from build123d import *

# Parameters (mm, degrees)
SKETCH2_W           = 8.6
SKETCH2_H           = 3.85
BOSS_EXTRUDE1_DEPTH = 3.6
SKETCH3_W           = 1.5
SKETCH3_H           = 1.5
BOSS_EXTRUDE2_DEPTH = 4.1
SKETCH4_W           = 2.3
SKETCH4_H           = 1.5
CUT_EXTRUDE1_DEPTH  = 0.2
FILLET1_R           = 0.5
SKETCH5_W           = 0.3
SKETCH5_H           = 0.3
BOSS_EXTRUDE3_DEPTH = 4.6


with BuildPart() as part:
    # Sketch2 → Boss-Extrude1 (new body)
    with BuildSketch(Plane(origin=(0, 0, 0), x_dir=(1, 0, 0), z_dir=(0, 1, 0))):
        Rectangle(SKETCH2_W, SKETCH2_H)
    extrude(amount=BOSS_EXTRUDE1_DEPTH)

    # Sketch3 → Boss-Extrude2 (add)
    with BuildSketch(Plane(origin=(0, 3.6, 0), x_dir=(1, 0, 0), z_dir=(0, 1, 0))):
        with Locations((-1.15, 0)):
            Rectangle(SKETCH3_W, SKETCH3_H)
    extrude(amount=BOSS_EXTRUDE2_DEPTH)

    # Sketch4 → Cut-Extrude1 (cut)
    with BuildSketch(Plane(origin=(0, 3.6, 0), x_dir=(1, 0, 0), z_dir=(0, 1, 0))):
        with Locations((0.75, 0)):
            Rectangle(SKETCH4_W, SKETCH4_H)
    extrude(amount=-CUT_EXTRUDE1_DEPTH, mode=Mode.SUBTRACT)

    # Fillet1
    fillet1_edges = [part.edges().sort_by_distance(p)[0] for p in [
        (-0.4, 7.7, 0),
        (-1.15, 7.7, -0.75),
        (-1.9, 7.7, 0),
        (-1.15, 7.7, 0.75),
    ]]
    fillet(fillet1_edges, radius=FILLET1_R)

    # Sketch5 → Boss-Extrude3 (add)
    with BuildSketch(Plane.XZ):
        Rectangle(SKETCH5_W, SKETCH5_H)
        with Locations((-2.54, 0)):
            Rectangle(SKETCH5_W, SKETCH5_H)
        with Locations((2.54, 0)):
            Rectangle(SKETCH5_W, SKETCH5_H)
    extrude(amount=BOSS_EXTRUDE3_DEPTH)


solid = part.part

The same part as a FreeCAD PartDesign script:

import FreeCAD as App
import Part
import Sketcher


def edges_at(feature, points):
    """Names of the edges that pass closest to the given points."""
    edges = feature.Shape.Edges
    near = lambda p: min(range(len(edges)), key=lambda i: edges[i].distToShape(Part.Vertex(*p))[0])
    return sorted({f"Edge{near(p) + 1}" for p in points})


def add_polygon(sketch, points):
    """Adds a closed chain of lines whose ends are joined by coincident constraints."""
    first, n = sketch.GeometryCount, len(points)
    for a, b in zip(points, points[1:] + points[:1]):
        sketch.addGeometry(Part.LineSegment(App.Vector(*a, 0), App.Vector(*b, 0)), False)
    for i in range(n):
        sketch.addConstraint(Sketcher.Constraint("Coincident", first + i, 2, first + (i + 1) % n, 1))

doc = App.newDocument("Part")
params = doc.addObject("Spreadsheet::Sheet", "Params")
for row, (alias, value) in enumerate([
    ("sketch1_width", "8.6 mm"),
    ("sketch1_height", "3.85 mm"),
    ("pad1_length", "3.6 mm"),
    ("sketch2_width", "1.5 mm"),
    ("pad2_length", "4.1 mm"),
    ("sketch3_width", "2.3 mm"),
    ("sketch3_height", "1.5 mm"),
    ("pocket1_length", "0.2 mm"),
    ("fillet_radius", "0.5 mm"),
    ("sketch4_width", "0.3 mm"),
    ("pad3_length", "4.6 mm"),
], start=1):
    params.set(f"A{row}", alias)
    params.set(f"B{row}", "=" + value)
    params.setAlias(f"B{row}", alias)

body = doc.addObject("PartDesign::Body", "Body")

# Sketch on XZ plane
sketch1 = body.newObject("Sketcher::SketchObject", "Sketch")
sketch1.AttachmentSupport = (doc.getObject("XZ_Plane"), [""])
sketch1.MapMode = "FlatFace"
add_polygon(sketch1, [(-4.3, -1.9), (-4.3, 1.9), (4.3, 1.9), (4.3, -1.9)])  # lines 0-3
sketch1.addConstraint([
    Sketcher.Constraint("Vertical", 0),
    Sketcher.Constraint("Horizontal", 1),
    Sketcher.Constraint("Vertical", 2),
    Sketcher.Constraint("Horizontal", 3),
    Sketcher.Constraint("Symmetric", 0, 2, 2, 2, -1, 1),
    Sketcher.Constraint("DistanceX", 1, 1, 1, 2, 8.6),
    Sketcher.Constraint("DistanceY", 0, 1, 0, 2, 3.85),
])
sketch1.setExpression("Constraints[9]", "Params.sketch1_width")
sketch1.setExpression("Constraints[10]", "Params.sketch1_height")
pad1 = body.newObject("PartDesign::Pad", "Pad")
pad1.Profile = sketch1
pad1.setExpression("Length", "Params.pad1_length")
pad1.Reversed = True

# Sketch on XZ plane
sketch2 = body.newObject("Sketcher::SketchObject", "Sketch001")
sketch2.AttachmentSupport = (doc.getObject("XZ_Plane"), [""])
sketch2.MapMode = "FlatFace"
sketch2.AttachmentOffset = App.Placement(App.Vector(0, 0, -3.6), App.Rotation())
add_polygon(sketch2, [(-1.9, -0.8), (-1.9, 0.8), (-0.4, 0.8), (-0.4, -0.8)])  # lines 0-3
sketch2.addConstraint([
    Sketcher.Constraint("Vertical", 0),
    Sketcher.Constraint("Horizontal", 1),
    Sketcher.Constraint("Vertical", 2),
    Sketcher.Constraint("Horizontal", 3),
    Sketcher.Constraint("Equal", 3, 0),
    Sketcher.Constraint("DistanceX", 1, 1, 1, 2, 1.5),
    Sketcher.Constraint("DistanceX", 0, 2, -1, 1, 1.9),
    Sketcher.Constraint("DistanceY", -1, 1, 0, 2, 0.75),
])
sketch2.setExpression("Constraints[9]", "Params.sketch2_width")
pad2 = body.newObject("PartDesign::Pad", "Pad001")
pad2.Profile = sketch2
pad2.setExpression("Length", "Params.pad2_length")
pad2.Reversed = True

# Sketch on XZ plane
sketch3 = body.newObject("Sketcher::SketchObject", "Sketch002")
sketch3.AttachmentSupport = (doc.getObject("XZ_Plane"), [""])
sketch3.MapMode = "FlatFace"
sketch3.AttachmentOffset = App.Placement(App.Vector(0, 0, -3.6), App.Rotation())
add_polygon(sketch3, [(-0.4, -0.8), (-0.4, 0.8), (1.9, 0.8), (1.9, -0.8)])  # lines 0-3
sketch3.addConstraint([
    Sketcher.Constraint("Vertical", 0),
    Sketcher.Constraint("Horizontal", 1),
    Sketcher.Constraint("Vertical", 2),
    Sketcher.Constraint("Horizontal", 3),
    Sketcher.Constraint("DistanceX", 1, 1, 1, 2, 2.3),
    Sketcher.Constraint("DistanceY", 0, 1, 0, 2, 1.5),
    Sketcher.Constraint("DistanceX", 0, 2, -1, 1, 0.4),
    Sketcher.Constraint("DistanceY", -1, 1, 0, 2, 0.75),
])
sketch3.setExpression("Constraints[8]", "Params.sketch3_width")
sketch3.setExpression("Constraints[9]", "Params.sketch3_height")
pocket1 = body.newObject("PartDesign::Pocket", "Pocket")
pocket1.Profile = sketch3
pocket1.setExpression("Length", "Params.pocket1_length")
pocket1.Reversed = True
doc.recompute()

fillet = body.newObject("PartDesign::Fillet", "Fillet")
fillet.Base = (pocket1, edges_at(pocket1, [
    (-0.4, 7.7, 0),
    (-1.15, 7.7, -0.75),
    (-1.9, 7.7, 0),
    (-1.15, 7.7, 0.75),
]))
fillet.setExpression("Radius", "Params.fillet_radius")

# Sketch on XZ plane
sketch4 = body.newObject("Sketcher::SketchObject", "Sketch003")
sketch4.AttachmentSupport = (doc.getObject("XZ_Plane"), [""])
sketch4.MapMode = "FlatFace"
add_polygon(sketch4, [(-0.15, 0.15), (-0.15, -0.15), (0.15, -0.15), (0.15, 0.15)])  # lines 0-3
add_polygon(sketch4, [(-2.69, 0.15), (-2.69, -0.15), (-2.39, -0.15), (-2.39, 0.15)])  # lines 4-7
add_polygon(sketch4, [(2.39, 0.15), (2.39, -0.15), (2.69, -0.15), (2.69, 0.15)])  # lines 8-11
sketch4.addConstraint([
    Sketcher.Constraint("Vertical", 0),
    Sketcher.Constraint("Horizontal", 1),
    Sketcher.Constraint("Vertical", 2),
    Sketcher.Constraint("Horizontal", 3),
    Sketcher.Constraint("Vertical", 4),
    Sketcher.Constraint("Horizontal", 5),
    Sketcher.Constraint("Vertical", 6),
    Sketcher.Constraint("Horizontal", 7),
    Sketcher.Constraint("Vertical", 8),
    Sketcher.Constraint("Horizontal", 9),
    Sketcher.Constraint("Vertical", 10),
    Sketcher.Constraint("Horizontal", 11),
    Sketcher.Constraint("Symmetric", 0, 2, 2, 2, -1, 1),
    Sketcher.Constraint("Symmetric", 6, 2, 8, 2, -1, 1),
    Sketcher.Constraint("Symmetric", 4, 2, 10, 2, -1, 1),
    Sketcher.Constraint("Horizontal", 1, 2, 4, 2),
    Sketcher.Constraint("Horizontal", 3, 2, 6, 2),
    Sketcher.Constraint("Equal", 3, 5),
    Sketcher.Constraint("Equal", 11, 0),
    Sketcher.Constraint("DistanceX", 1, 1, 1, 2, 0.3),
    Sketcher.Constraint("DistanceX", 4, 2, -1, 1, 2.69),
])
sketch4.setExpression("Constraints[31]", "Params.sketch4_width")
pad3 = body.newObject("PartDesign::Pad", "Pad002")
pad3.Profile = sketch4
pad3.setExpression("Length", "Params.pad3_length")

doc.recompute()
